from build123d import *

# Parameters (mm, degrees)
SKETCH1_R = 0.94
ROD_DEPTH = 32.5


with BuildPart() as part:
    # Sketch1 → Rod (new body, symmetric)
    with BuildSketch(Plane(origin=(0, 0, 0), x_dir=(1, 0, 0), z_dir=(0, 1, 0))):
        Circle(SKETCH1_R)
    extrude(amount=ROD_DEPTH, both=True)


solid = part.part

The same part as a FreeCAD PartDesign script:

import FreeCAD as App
import Part
import Sketcher
from FreeCAD import Vector

doc = App.newDocument("Part")
body = doc.addObject("PartDesign::Body", "Body")

# Sketch on XZ plane
sketch1 = body.newObject("Sketcher::SketchObject", "Sketch")
sketch1.AttachmentSupport = (doc.getObject("XZ_Plane"), [""])
sketch1.MapMode = "FlatFace"
sketch1.addGeometry(Part.Circle(Vector(0, 0, 0), Vector(0, 0, 1), 0.9), False)
sketch1.addConstraint([
    Sketcher.Constraint("Coincident", 0, 3, -1, 1),
    Sketcher.Constraint("Diameter", 0, 1.88),
])
pad1 = body.newObject("PartDesign::Pad", "Pad")
pad1.Profile = sketch1
pad1.Length = 65
pad1.Midplane = True

doc.recompute()
